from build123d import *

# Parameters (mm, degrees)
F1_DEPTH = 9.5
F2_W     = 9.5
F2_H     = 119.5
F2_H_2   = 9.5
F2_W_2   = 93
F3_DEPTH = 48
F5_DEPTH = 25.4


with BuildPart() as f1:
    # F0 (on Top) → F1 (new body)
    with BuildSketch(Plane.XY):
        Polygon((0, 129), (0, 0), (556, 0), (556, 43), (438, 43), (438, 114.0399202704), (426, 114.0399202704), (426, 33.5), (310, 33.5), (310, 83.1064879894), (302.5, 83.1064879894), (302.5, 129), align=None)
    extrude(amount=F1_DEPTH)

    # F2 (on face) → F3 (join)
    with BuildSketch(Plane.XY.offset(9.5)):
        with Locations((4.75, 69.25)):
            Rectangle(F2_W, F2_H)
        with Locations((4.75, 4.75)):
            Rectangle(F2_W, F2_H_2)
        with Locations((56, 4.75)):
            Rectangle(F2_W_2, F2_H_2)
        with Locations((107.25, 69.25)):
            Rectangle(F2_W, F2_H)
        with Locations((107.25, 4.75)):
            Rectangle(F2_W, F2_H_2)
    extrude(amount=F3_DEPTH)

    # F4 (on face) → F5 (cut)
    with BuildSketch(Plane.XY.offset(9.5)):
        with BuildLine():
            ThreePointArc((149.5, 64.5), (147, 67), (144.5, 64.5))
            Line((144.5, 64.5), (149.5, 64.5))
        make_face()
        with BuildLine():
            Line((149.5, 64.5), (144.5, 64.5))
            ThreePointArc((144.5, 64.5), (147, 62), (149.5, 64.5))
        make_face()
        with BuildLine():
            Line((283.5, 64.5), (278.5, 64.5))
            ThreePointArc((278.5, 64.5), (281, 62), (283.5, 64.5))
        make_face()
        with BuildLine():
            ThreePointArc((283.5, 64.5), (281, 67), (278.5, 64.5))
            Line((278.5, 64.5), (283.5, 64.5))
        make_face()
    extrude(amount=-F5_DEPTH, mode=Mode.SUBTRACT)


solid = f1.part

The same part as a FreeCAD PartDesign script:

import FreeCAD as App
import Part
import Sketcher
from FreeCAD import Vector


def add_polygon(sketch, points):
    """Adds a closed chain of lines whose ends are joined by coincident constraints."""
    first, n = sketch.GeometryCount, len(points)
    for a, b in zip(points, points[1:] + points[:1]):
        sketch.addGeometry(Part.LineSegment(App.Vector(*a, 0), App.Vector(*b, 0)), False)
    for i in range(n):
        sketch.addConstraint(Sketcher.Constraint("Coincident", first + i, 2, first + (i + 1) % n, 1))

doc = App.newDocument("Part")
body = doc.addObject("PartDesign::Body", "Body")

sketch1 = body.newObject("Sketcher::SketchObject", "Sketch")
sketch1.AttachmentSupport = (doc.getObject("XY_Plane"), [""])
sketch1.MapMode = "FlatFace"
add_polygon(sketch1, [(0, 129), (0, 0), (556, 0), (556, 43), (438, 43), (438, 114.03992), (426, 114.03992), (426, 33.5), (310, 33.5), (310, 83.106488), (302.5, 83.106488), (302.5, 129)])
sketch1.addConstraint([
    Sketcher.Constraint("Vertical", 0),
    Sketcher.Constraint("Horizontal", 1),
    Sketcher.Constraint("Vertical", 2),
    Sketcher.Constraint("Horizontal", 3),
    Sketcher.Constraint("Vertical", 4),
    Sketcher.Constraint("Horizontal", 5),
    Sketcher.Constraint("Vertical", 6),
    Sketcher.Constraint("Horizontal", 7),
    Sketcher.Constraint("Vertical", 8),
    Sketcher.Constraint("Horizontal", 9),
    Sketcher.Constraint("Vertical", 10),
    Sketcher.Constraint("Horizontal", 11),
    Sketcher.Constraint("Coincident", 0, 2, -1, 1),
    Sketcher.Constraint("DistanceX", 1, 1, 1, 2, 556.0),
    Sketcher.Constraint("DistanceX", 3, 2, 3, 1, 118.0),
    Sketcher.Constraint("DistanceX", 5, 2, 5, 1, 12.0),
    Sketcher.Constraint("DistanceX", 7, 2, 7, 1, 116.0),
    Sketcher.Constraint("DistanceY", 0, 2, 0, 1, 129.0),
    Sketcher.Constraint("DistanceY", 2, 1, 2, 2, 43.0),
    Sketcher.Constraint("DistanceX", 9, 2, 9, 1, 7.5),
    Sketcher.Constraint("DistanceY", -1, 1, 6, 2, 33.5),
    Sketcher.Constraint("DistanceY", 4, 1, 4, 2, 71.03992),
    Sketcher.Constraint("DistanceY", 8, 1, 8, 2, 49.606488),
])
pad1 = body.newObject("PartDesign::Pad", "Pad")
pad1.Profile = sketch1
pad1.Length = 9.5

sketch2 = body.newObject("Sketcher::SketchObject", "Sketch001")
sketch2.AttachmentSupport = (doc.getObject("XY_Plane"), [""])
sketch2.MapMode = "FlatFace"
sketch2.AttachmentOffset = App.Placement(Vector(0, 0, 9.5), App.Rotation())
add_polygon(sketch2, [(0, 129), (0, 0), (112, 0), (112, 129), (102.5, 129), (102.5, 9.5), (9.5, 9.5), (9.5, 129)])
sketch2.addConstraint([
    Sketcher.Constraint("Vertical", 0),
    Sketcher.Constraint("Horizontal", 1),
    Sketcher.Constraint("Vertical", 2),
    Sketcher.Constraint("Horizontal", 3),
    Sketcher.Constraint("Vertical", 4),
    Sketcher.Constraint("Horizontal", 5),
    Sketcher.Constraint("Vertical", 6),
    Sketcher.Constraint("Horizontal", 7),
    Sketcher.Constraint("Coincident", 0, 2, -1, 1),
    Sketcher.Constraint("Horizontal", 3, 2, 6, 2),
    Sketcher.Constraint("Equal", 3, 7),
    Sketcher.Constraint("DistanceX", 1, 1, 1, 2, 112.0),
    Sketcher.Constraint("DistanceX", 5, 2, 5, 1, 93.0),
    Sketcher.Constraint("DistanceY", 0, 2, 0, 1, 129.0),
    Sketcher.Constraint("DistanceY", 4, 2, 4, 1, 119.5),
])
pad2 = body.newObject("PartDesign::Pad", "Pad001")
pad2.Profile = sketch2
pad2.Length = 48

sketch3 = body.newObject("Sketcher::SketchObject", "Sketch002")
sketch3.AttachmentSupport = (doc.getObject("XY_Plane"), [""])
sketch3.MapMode = "FlatFace"
sketch3.AttachmentOffset = App.Placement(Vector(0, 0, 9.5), App.Rotation())
sketch3.addGeometry([
    Part.Circle(Vector(147, 64.5, 0), Vector(0, 0, 1), 2.5),
    Part.Circle(Vector(281, 64.5, 0), Vector(0, 0, 1), 2.5),
], False)
sketch3.addConstraint([
    Sketcher.Constraint("Equal", 0, 1),
    Sketcher.Constraint("Horizontal", 0, 3, 1, 3),
    Sketcher.Constraint("Diameter", 0, 5.0),
    Sketcher.Constraint("DistanceX", -1, 1, 0, 3, 147.0),
    Sketcher.Constraint("DistanceX", -1, 1, 1, 3, 281.0),
    Sketcher.Constraint("DistanceY", -1, 1, 0, 3, 64.5),
])
pocket1 = body.newObject("PartDesign::Pocket", "Pocket")
pocket1.Profile = sketch3
pocket1.Length = 25.4

doc.recompute()
